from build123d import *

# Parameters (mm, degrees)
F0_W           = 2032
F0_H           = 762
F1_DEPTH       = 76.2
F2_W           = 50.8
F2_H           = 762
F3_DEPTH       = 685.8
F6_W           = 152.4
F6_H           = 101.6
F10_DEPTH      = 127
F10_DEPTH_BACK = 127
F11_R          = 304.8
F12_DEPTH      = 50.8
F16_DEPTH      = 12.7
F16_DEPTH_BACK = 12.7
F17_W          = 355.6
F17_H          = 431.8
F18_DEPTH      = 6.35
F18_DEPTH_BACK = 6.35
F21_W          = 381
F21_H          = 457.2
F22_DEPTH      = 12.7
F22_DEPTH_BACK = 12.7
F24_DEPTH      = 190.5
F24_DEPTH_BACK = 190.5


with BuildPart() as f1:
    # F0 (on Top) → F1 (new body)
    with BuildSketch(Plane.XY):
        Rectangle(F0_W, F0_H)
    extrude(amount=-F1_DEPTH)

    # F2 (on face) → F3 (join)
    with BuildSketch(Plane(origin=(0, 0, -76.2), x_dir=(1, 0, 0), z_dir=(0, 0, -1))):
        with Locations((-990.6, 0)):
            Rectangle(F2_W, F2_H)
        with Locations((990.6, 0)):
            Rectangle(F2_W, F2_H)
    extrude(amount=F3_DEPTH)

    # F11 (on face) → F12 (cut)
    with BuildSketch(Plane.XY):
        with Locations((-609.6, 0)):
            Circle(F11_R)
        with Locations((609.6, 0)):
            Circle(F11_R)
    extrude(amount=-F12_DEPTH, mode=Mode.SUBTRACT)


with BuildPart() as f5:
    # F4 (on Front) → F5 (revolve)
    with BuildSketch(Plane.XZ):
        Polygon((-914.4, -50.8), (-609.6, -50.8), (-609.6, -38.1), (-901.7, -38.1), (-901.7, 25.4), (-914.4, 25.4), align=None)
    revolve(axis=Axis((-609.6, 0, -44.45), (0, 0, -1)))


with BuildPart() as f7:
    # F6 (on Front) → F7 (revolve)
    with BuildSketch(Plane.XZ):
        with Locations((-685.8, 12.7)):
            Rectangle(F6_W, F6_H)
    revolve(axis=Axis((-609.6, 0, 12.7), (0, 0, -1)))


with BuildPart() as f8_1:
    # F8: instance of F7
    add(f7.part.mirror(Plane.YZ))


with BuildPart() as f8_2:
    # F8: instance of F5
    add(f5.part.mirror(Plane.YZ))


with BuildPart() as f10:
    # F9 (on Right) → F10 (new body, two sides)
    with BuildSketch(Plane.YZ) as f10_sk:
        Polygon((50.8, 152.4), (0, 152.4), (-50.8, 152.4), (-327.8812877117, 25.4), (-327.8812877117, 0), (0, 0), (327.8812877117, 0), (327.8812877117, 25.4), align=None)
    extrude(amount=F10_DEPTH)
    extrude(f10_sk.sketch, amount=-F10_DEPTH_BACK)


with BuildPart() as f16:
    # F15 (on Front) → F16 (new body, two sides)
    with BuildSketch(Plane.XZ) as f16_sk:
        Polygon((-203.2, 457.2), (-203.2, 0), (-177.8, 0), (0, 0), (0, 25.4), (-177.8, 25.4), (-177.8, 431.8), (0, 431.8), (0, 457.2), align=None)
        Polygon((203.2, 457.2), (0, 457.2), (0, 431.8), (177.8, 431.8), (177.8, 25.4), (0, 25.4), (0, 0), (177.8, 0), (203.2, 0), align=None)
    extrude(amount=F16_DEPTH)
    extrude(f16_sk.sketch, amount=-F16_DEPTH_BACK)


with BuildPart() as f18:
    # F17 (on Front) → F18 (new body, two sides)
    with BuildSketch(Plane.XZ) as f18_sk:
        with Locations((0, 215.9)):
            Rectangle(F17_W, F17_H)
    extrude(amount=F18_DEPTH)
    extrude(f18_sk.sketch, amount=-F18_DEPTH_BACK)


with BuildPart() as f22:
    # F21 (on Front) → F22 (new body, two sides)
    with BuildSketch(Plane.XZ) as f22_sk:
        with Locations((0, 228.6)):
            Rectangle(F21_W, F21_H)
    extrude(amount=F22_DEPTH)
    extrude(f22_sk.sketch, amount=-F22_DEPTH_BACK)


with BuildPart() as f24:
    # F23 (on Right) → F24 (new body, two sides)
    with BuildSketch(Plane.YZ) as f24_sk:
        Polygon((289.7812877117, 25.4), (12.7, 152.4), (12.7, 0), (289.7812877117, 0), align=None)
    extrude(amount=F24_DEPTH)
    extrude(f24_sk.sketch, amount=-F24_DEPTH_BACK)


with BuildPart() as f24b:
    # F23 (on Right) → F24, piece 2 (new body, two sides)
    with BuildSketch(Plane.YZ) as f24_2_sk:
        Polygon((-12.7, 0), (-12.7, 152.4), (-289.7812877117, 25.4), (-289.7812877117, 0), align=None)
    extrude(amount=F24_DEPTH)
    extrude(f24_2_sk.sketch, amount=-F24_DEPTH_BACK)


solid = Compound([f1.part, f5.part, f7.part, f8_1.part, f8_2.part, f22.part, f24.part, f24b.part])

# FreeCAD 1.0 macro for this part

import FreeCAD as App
import Part
import Sketcher
from FreeCAD import Vector
Q = App.Units.Quantity

doc = App.newDocument("Part")
body = doc.addObject("PartDesign::Body", "Body")

sketch1 = doc.addObject("Sketcher::SketchObject", "Sketch")
body.addObject(sketch1)
sketch1.AttachmentSupport = (doc.XY_Plane, [""])
sketch1.MapMode = "FlatFace"
sketch1.addGeometry([
    Part.LineSegment(Vector(-1016, 381, 0), Vector(-1016, -381, 0)),
    Part.LineSegment(Vector(-1016, -381, 0), Vector(1016, -381, 0)),
    Part.LineSegment(Vector(1016, -381, 0), Vector(1016, 381, 0)),
    Part.LineSegment(Vector(1016, 381, 0), Vector(-1016, 381, 0)),
], False)
sketch1.addConstraint([
    Sketcher.Constraint("Coincident", 0, 2, 1, 1),
    Sketcher.Constraint("Coincident", 1, 2, 2, 1),
    Sketcher.Constraint("Coincident", 2, 2, 3, 1),
    Sketcher.Constraint("Coincident", 3, 2, 0, 1),
    Sketcher.Constraint("Vertical", 0),
    Sketcher.Constraint("Horizontal", 1),
    Sketcher.Constraint("Vertical", 2),
    Sketcher.Constraint("Horizontal", 3),
    Sketcher.Constraint("Symmetric", 0, 2, 2, 2, -1, 1),
    Sketcher.Constraint("DistanceX", 1, 1, 1, 2, Q("80 in")),
    Sketcher.Constraint("DistanceY", 0, 2, 0, 1, Q("30 in")),
])
pad1 = doc.addObject("PartDesign::Pad", "Pad")
body.addObject(pad1)
pad1.Profile = sketch1
pad1.Length = Q("3 in")
pad1.Reversed = True

sketch2 = doc.addObject("Sketcher::SketchObject", "Sketch001")
body.addObject(sketch2)
sketch2.AttachmentSupport = (doc.XY_Plane, [""])
sketch2.MapMode = "FlatFace"
sketch2.AttachmentOffset = App.Placement(Vector(0, 0, -3 * 25.4), App.Rotation())
sketch2.addGeometry([
    Part.LineSegment(Vector(-1016, -381, 0), Vector(-1016, 381, 0)),
    Part.LineSegment(Vector(-1016, 381, 0), Vector(-965.2, 381, 0)),
    Part.LineSegment(Vector(-965.2, 381, 0), Vector(-965.2, -381, 0)),
    Part.LineSegment(Vector(-965.2, -381, 0), Vector(-1016, -381, 0)),
    Part.LineSegment(Vector(965.2, -381, 0), Vector(965.2, 381, 0)),
    Part.LineSegment(Vector(965.2, 381, 0), Vector(1016, 381, 0)),
    Part.LineSegment(Vector(1016, 381, 0), Vector(1016, -381, 0)),
    Part.LineSegment(Vector(1016, -381, 0), Vector(965.2, -381, 0)),
], False)
sketch2.addConstraint([
    Sketcher.Constraint("Coincident", 0, 2, 1, 1),
    Sketcher.Constraint("Coincident", 1, 2, 2, 1),
    Sketcher.Constraint("Coincident", 2, 2, 3, 1),
    Sketcher.Constraint("Coincident", 3, 2, 0, 1),
    Sketcher.Constraint("Coincident", 4, 2, 5, 1),
    Sketcher.Constraint("Coincident", 5, 2, 6, 1),
    Sketcher.Constraint("Coincident", 6, 2, 7, 1),
    Sketcher.Constraint("Coincident", 7, 2, 4, 1),
    Sketcher.Constraint("Vertical", 0),
    Sketcher.Constraint("Horizontal", 1),
    Sketcher.Constraint("Vertical", 2),
    Sketcher.Constraint("Horizontal", 3),
    Sketcher.Constraint("Vertical", 4),
    Sketcher.Constraint("Horizontal", 5),
    Sketcher.Constraint("Vertical", 6),
    Sketcher.Constraint("Horizontal", 7),
    Sketcher.Constraint("Symmetric", 2, 2, 4, 2, -1, 1),
    Sketcher.Constraint("Symmetric", 0, 2, 6, 2, -1, 1),
    Sketcher.Constraint("Horizontal", 1, 2, 4, 2),
    Sketcher.Constraint("DistanceX", 1, 1, 1, 2, Q("2 in")),
    Sketcher.Constraint("DistanceY", 0, 1, 0, 2, Q("30 in")),
    Sketcher.Constraint("DistanceX", 0, 2, -1, 1, Q("40 in")),
])
pad2 = doc.addObject("PartDesign::Pad", "Pad001")
body.addObject(pad2)
pad2.Profile = sketch2
pad2.Length = Q("27 in")
pad2.Reversed = True

sketch3 = doc.addObject("Sketcher::SketchObject", "Sketch002")
body.addObject(sketch3)
sketch3.AttachmentSupport = (doc.XY_Plane, [""])
sketch3.MapMode = "FlatFace"
sketch3.addGeometry([
    Part.Circle(Vector(-609.6, 0, 0), Vector(0, 0, 1), 304.8),
    Part.Circle(Vector(609.6, 0, 0), Vector(0, 0, 1), 304.8),
], False)
sketch3.addConstraint([
    Sketcher.Constraint("Equal", 0, 1),
    Sketcher.Constraint("Symmetric", 0, 3, 1, 3, -1, 1),
    Sketcher.Constraint("PointOnObject", 0, 3, -1),
    Sketcher.Constraint("Diameter", 0, Q("24 in")),
    Sketcher.Constraint("DistanceX", 0, 3, -1, 1, Q("24 in")),
])
pocket1 = doc.addObject("PartDesign::Pocket", "Pocket")
body.addObject(pocket1)
pocket1.Profile = sketch3
pocket1.Length = Q("2 in")
body2 = doc.addObject("PartDesign::Body", "Body001")

sketch4 = doc.addObject("Sketcher::SketchObject", "Sketch003")
body2.addObject(sketch4)
sketch4.AttachmentSupport = (doc.getObject("XZ_Plane001"), [""])
sketch4.MapMode = "FlatFace"
sketch4.addGeometry([
    Part.LineSegment(Vector(-914.4, -50.8, 0), Vector(-609.6, -50.8, 0)),
    Part.LineSegment(Vector(-609.6, -50.8, 0), Vector(-609.6, -38.1, 0)),
    Part.LineSegment(Vector(-609.6, -38.1, 0), Vector(-901.7, -38.1, 0)),
    Part.LineSegment(Vector(-901.7, -38.1, 0), Vector(-901.7, 25.4, 0)),
    Part.LineSegment(Vector(-901.7, 25.4, 0), Vector(-914.4, 25.4, 0)),
    Part.LineSegment(Vector(-914.4, 25.4, 0), Vector(-914.4, -50.8, 0)),
], False)
sketch4.addGeometry(Part.LineSegment(Vector(-609.6, 25.4, 0), Vector(-609.6, -50.8, 0)), True)
sketch4.addConstraint([
    Sketcher.Constraint("Coincident", 0, 2, 1, 1),
    Sketcher.Constraint("Coincident", 1, 2, 2, 1),
    Sketcher.Constraint("Coincident", 2, 2, 3, 1),
    Sketcher.Constraint("Coincident", 3, 2, 4, 1),
    Sketcher.Constraint("Coincident", 4, 2, 5, 1),
    Sketcher.Constraint("Coincident", 5, 2, 0, 1),
    Sketcher.Constraint("Horizontal", 0),
    Sketcher.Constraint("Vertical", 1),
    Sketcher.Constraint("Horizontal", 2),
    Sketcher.Constraint("Vertical", 3),
    Sketcher.Constraint("Horizontal", 4),
    Sketcher.Constraint("Vertical", 5),
    Sketcher.Constraint("Vertical", 6),
    Sketcher.Constraint("Coincident", 6, 2, 0, 2),
    Sketcher.Constraint("Horizontal", 4, 2, 6, 1),
    Sketcher.Constraint("Equal", 4, 1),
    Sketcher.Constraint("DistanceX", 0, 1, 0, 2, Q("12 in")),
    Sketcher.Constraint("DistanceY", 5, 2, 5, 1, Q("3 in")),
    Sketcher.Constraint("DistanceX", 2, 2, 2, 1, Q("11.5 in")),
    Sketcher.Constraint("DistanceX", 0, 2, -1, 1, Q("24 in")),
    Sketcher.Constraint("DistanceY", 0, 2, -1, 1, Q("2 in")),
])
revolution = doc.addObject("PartDesign::Revolution", "Revolution")
body2.addObject(revolution)
revolution.Profile = sketch4
revolution.ReferenceAxis = (sketch4, ["Axis0"])
revolution.Angle = 360
body3 = doc.addObject("PartDesign::Body", "Body002")

sketch5 = doc.addObject("Sketcher::SketchObject", "Sketch004")
body3.addObject(sketch5)
sketch5.AttachmentSupport = (doc.getObject("XZ_Plane002"), [""])
sketch5.MapMode = "FlatFace"
sketch5.addGeometry([
    Part.LineSegment(Vector(-762, 63.5, 0), Vector(-762, -38.1, 0)),
    Part.LineSegment(Vector(-762, -38.1, 0), Vector(-609.6, -38.1, 0)),
    Part.LineSegment(Vector(-609.6, -38.1, 0), Vector(-609.6, 63.5, 0)),
    Part.LineSegment(Vector(-609.6, 63.5, 0), Vector(-762, 63.5, 0)),
], False)
sketch5.addGeometry(Part.LineSegment(Vector(-609.6, 63.5, 0), Vector(-609.6, -38.1, 0)), True)
sketch5.addConstraint([
    Sketcher.Constraint("Coincident", 0, 2, 1, 1),
    Sketcher.Constraint("Coincident", 1, 2, 2, 1),
    Sketcher.Constraint("Coincident", 2, 2, 3, 1),
    Sketcher.Constraint("Coincident", 3, 2, 0, 1),
    Sketcher.Constraint("Vertical", 0),
    Sketcher.Constraint("Horizontal", 1),
    Sketcher.Constraint("Vertical", 2),
    Sketcher.Constraint("Horizontal", 3),
    Sketcher.Constraint("Vertical", 4),
    Sketcher.Constraint("Coincident", 4, 1, 2, 2),
    Sketcher.Constraint("Horizontal", 0, 2, 4, 2),
    Sketcher.Constraint("DistanceX", 1, 1, 1, 2, Q("6 in")),
    Sketcher.Constraint("DistanceY", 0, 2, 0, 1, Q("4 in")),
    Sketcher.Constraint("DistanceX", 0, 2, -1, 1, Q("30 in")),
    Sketcher.Constraint("DistanceY", 0, 2, -1, 1, Q("1.5 in")),
])
revolution2 = doc.addObject("PartDesign::Revolution", "Revolution001")
body3.addObject(revolution2)
revolution2.Profile = sketch5
revolution2.ReferenceAxis = (sketch5, ["Axis0"])
revolution2.Angle = 360
body4 = doc.addObject("PartDesign::Body", "Body003")
doc.recompute()

mirroring = doc.addObject("Part::Mirroring", "Mirroring")
mirroring.Source = body3
mirroring.Base = Vector(0, 0, 0)
mirroring.Normal = Vector(1, 0, 0)
body4.BaseFeature = mirroring
doc.recompute()
body5 = doc.addObject("PartDesign::Body", "Body004")
doc.recompute()

mirroring2 = doc.addObject("Part::Mirroring", "Mirroring001")
mirroring2.Source = body2
mirroring2.Base = Vector(0, 0, 0)
mirroring2.Normal = Vector(1, 0, 0)
body5.BaseFeature = mirroring2
doc.recompute()
body6 = doc.addObject("PartDesign::Body", "Body005")

sketch6 = doc.addObject("Sketcher::SketchObject", "Sketch005")
body6.addObject(sketch6)
sketch6.AttachmentSupport = (doc.getObject("YZ_Plane005"), [""])
sketch6.MapMode = "FlatFace"
sketch6.addGeometry([
    Part.LineSegment(Vector(50.8, 152.4, 0), Vector(-50.8, 152.4, 0)),
    Part.LineSegment(Vector(-50.8, 152.4, 0), Vector(-327.881288, 25.4, 0)),
    Part.LineSegment(Vector(-327.881288, 25.4, 0), Vector(-327.881288, 0, 0)),
    Part.LineSegment(Vector(-327.881288, 0, 0), Vector(327.881288, 0, 0)),
    Part.LineSegment(Vector(327.881288, 0, 0), Vector(327.881288, 25.4, 0)),
    Part.LineSegment(Vector(327.881288, 25.4, 0), Vector(50.8, 152.4, 0)),
], False)
sketch6.addConstraint([
    Sketcher.Constraint("Coincident", 0, 2, 1, 1),
    Sketcher.Constraint("Coincident", 1, 2, 2, 1),
    Sketcher.Constraint("Coincident", 2, 2, 3, 1),
    Sketcher.Constraint("Coincident", 3, 2, 4, 1),
    Sketcher.Constraint("Coincident", 4, 2, 5, 1),
    Sketcher.Constraint("Coincident", 5, 2, 0, 1),
    Sketcher.Constraint("Horizontal", 0),
    Sketcher.Constraint("Vertical", 2),
    Sketcher.Constraint("Horizontal", 3),
    Sketcher.Constraint("Vertical", 4),
    Sketcher.Constraint("Symmetric", 2, 2, 3, 2, -1, 1),
    Sketcher.Constraint("Horizontal", 1, 2, 4, 2),
    Sketcher.Constraint("Equal", 1, 5),
    Sketcher.Constraint("DistanceX", 0, 2, 0, 1, Q("4 in")),
    Sketcher.Constraint("DistanceY", 2, 2, 2, 1, Q("1 in")),
    Sketcher.Constraint("Distance", 1, Q("12 in")),
    Sketcher.Constraint("DistanceY", -1, 1, 0, 2, Q("6 in")),
])
pad3 = doc.addObject("PartDesign::Pad", "Pad002")
body6.addObject(pad3)
pad3.Profile = sketch6
pad3.Type = "TwoLengths"
pad3.Length = Q("5 in")
pad3.Length2 = Q("5 in")
body7 = doc.addObject("PartDesign::Body", "Body006")

sketch7 = doc.addObject("Sketcher::SketchObject", "Sketch006")
body7.addObject(sketch7)
sketch7.AttachmentSupport = (doc.getObject("XZ_Plane006"), [""])
sketch7.MapMode = "FlatFace"
sketch7.addGeometry([
    Part.LineSegment(Vector(-203.2, 457.2, 0), Vector(-203.2, 0, 0)),
    Part.LineSegment(Vector(-203.2, 0, 0), Vector(203.2, 0, 0)),
    Part.LineSegment(Vector(203.2, 0, 0), Vector(203.2, 457.2, 0)),
    Part.LineSegment(Vector(203.2, 457.2, 0), Vector(-203.2, 457.2, 0)),
    Part.LineSegment(Vector(-177.8, 25.4, 0), Vector(-177.8, 431.8, 0)),
    Part.LineSegment(Vector(-177.8, 431.8, 0), Vector(177.8, 431.8, 0)),
    Part.LineSegment(Vector(177.8, 431.8, 0), Vector(177.8, 25.4, 0)),
    Part.LineSegment(Vector(177.8, 25.4, 0), Vector(-177.8, 25.4, 0)),
], False)
sketch7.addConstraint([
    Sketcher.Constraint("Coincident", 0, 2, 1, 1),
    Sketcher.Constraint("Coincident", 1, 2, 2, 1),
    Sketcher.Constraint("Coincident", 2, 2, 3, 1),
    Sketcher.Constraint("Coincident", 3, 2, 0, 1),
    Sketcher.Constraint("Coincident", 4, 2, 5, 1),
    Sketcher.Constraint("Coincident", 5, 2, 6, 1),
    Sketcher.Constraint("Coincident", 6, 2, 7, 1),
    Sketcher.Constraint("Coincident", 7, 2, 4, 1),
    Sketcher.Constraint("Vertical", 0),
    Sketcher.Constraint("Horizontal", 1),
    Sketcher.Constraint("Vertical", 2),
    Sketcher.Constraint("Horizontal", 3),
    Sketcher.Constraint("Vertical", 4),
    Sketcher.Constraint("Horizontal", 5),
    Sketcher.Constraint("Vertical", 6),
    Sketcher.Constraint("Horizontal", 7),
    Sketcher.Constraint("Symmetric", 0, 2, 1, 2, -1, 1),
    Sketcher.Constraint("Equal", 3, 4),
    Sketcher.Constraint("DistanceX", 1, 1, 1, 2, Q("16 in")),
    Sketcher.Constraint("DistanceX", 5, 1, 5, 2, Q("14 in")),
    Sketcher.Constraint("DistanceY", 0, 2, 0, 1, Q("18 in")),
    Sketcher.Constraint("DistanceX", 4, 2, -1, 1, Q("7 in")),
    Sketcher.Constraint("DistanceY", -1, 1, 4, 2, Q("17 in")),
])
pad4 = doc.addObject("PartDesign::Pad", "Pad003")
body7.addObject(pad4)
pad4.Profile = sketch7
pad4.Type = "TwoLengths"
pad4.Length = Q("0.5 in")
pad4.Length2 = Q("0.5 in")
body8 = doc.addObject("PartDesign::Body", "Body007")

sketch8 = doc.addObject("Sketcher::SketchObject", "Sketch007")
body8.addObject(sketch8)
sketch8.AttachmentSupport = (doc.getObject("XZ_Plane007"), [""])
sketch8.MapMode = "FlatFace"
sketch8.addGeometry([
    Part.LineSegment(Vector(-177.8, 431.8, 0), Vector(-177.8, 0, 0)),
    Part.LineSegment(Vector(-177.8, 0, 0), Vector(177.8, 0, 0)),
    Part.LineSegment(Vector(177.8, 0, 0), Vector(177.8, 431.8, 0)),
    Part.LineSegment(Vector(177.8, 431.8, 0), Vector(-177.8, 431.8, 0)),
], False)
sketch8.addConstraint([
    Sketcher.Constraint("Coincident", 0, 2, 1, 1),
    Sketcher.Constraint("Coincident", 1, 2, 2, 1),
    Sketcher.Constraint("Coincident", 2, 2, 3, 1),
    Sketcher.Constraint("Coincident", 3, 2, 0, 1),
    Sketcher.Constraint("Vertical", 0),
    Sketcher.Constraint("Horizontal", 1),
    Sketcher.Constraint("Vertical", 2),
    Sketcher.Constraint("Horizontal", 3),
    Sketcher.Constraint("Symmetric", 0, 2, 1, 2, -1, 1),
    Sketcher.Constraint("DistanceX", 1, 1, 1, 2, Q("14 in")),
    Sketcher.Constraint("DistanceY", 0, 2, 0, 1, Q("17 in")),
])
pad5 = doc.addObject("PartDesign::Pad", "Pad004")
body8.addObject(pad5)
pad5.Profile = sketch8
pad5.Type = "TwoLengths"
pad5.Length = Q("0.25 in")
pad5.Length2 = Q("0.25 in")
body9 = doc.addObject("PartDesign::Body", "Body008")

sketch9 = doc.addObject("Sketcher::SketchObject", "Sketch008")
body9.addObject(sketch9)
sketch9.AttachmentSupport = (doc.getObject("XZ_Plane008"), [""])
sketch9.MapMode = "FlatFace"
sketch9.addGeometry([
    Part.LineSegment(Vector(-190.5, 457.2, 0), Vector(-190.5, 0, 0)),
    Part.LineSegment(Vector(-190.5, 0, 0), Vector(190.5, 0, 0)),
    Part.LineSegment(Vector(190.5, 0, 0), Vector(190.5, 457.2, 0)),
    Part.LineSegment(Vector(190.5, 457.2, 0), Vector(-190.5, 457.2, 0)),
], False)
sketch9.addConstraint([
    Sketcher.Constraint("Coincident", 0, 2, 1, 1),
    Sketcher.Constraint("Coincident", 1, 2, 2, 1),
    Sketcher.Constraint("Coincident", 2, 2, 3, 1),
    Sketcher.Constraint("Coincident", 3, 2, 0, 1),
    Sketcher.Constraint("Vertical", 0),
    Sketcher.Constraint("Horizontal", 1),
    Sketcher.Constraint("Vertical", 2),
    Sketcher.Constraint("Horizontal", 3),
    Sketcher.Constraint("Symmetric", 0, 2, 1, 2, -1, 1),
    Sketcher.Constraint("DistanceX", 1, 1, 1, 2, Q("15 in")),
    Sketcher.Constraint("DistanceY", 0, 2, 0, 1, Q("18 in")),
])
pad6 = doc.addObject("PartDesign::Pad", "Pad005")
body9.addObject(pad6)
pad6.Profile = sketch9
pad6.Type = "TwoLengths"
pad6.Length = Q("0.5 in")
pad6.Length2 = Q("0.5 in")
body10 = doc.addObject("PartDesign::Body", "Body009")

sketch10 = doc.addObject("Sketcher::SketchObject", "Sketch009")
body10.addObject(sketch10)
sketch10.AttachmentSupport = (doc.getObject("YZ_Plane009"), [""])
sketch10.MapMode = "FlatFace"
sketch10.addGeometry([
    Part.LineSegment(Vector(289.781288, 25.4, 0), Vector(12.7, 152.4, 0)),
    Part.LineSegment(Vector(12.7, 152.4, 0), Vector(12.7, 0, 0)),
    Part.LineSegment(Vector(12.7, 0, 0), Vector(289.781288, 0, 0)),
    Part.LineSegment(Vector(289.781288, 0, 0), Vector(289.781288, 25.4, 0)),
], False)
sketch10.addConstraint([
    Sketcher.Constraint("Coincident", 0, 2, 1, 1),
    Sketcher.Constraint("Coincident", 1, 2, 2, 1),
    Sketcher.Constraint("Coincident", 2, 2, 3, 1),
    Sketcher.Constraint("Coincident", 3, 2, 0, 1),
    Sketcher.Constraint("Vertical", 1),
    Sketcher.Constraint("Horizontal", 2),
    Sketcher.Constraint("Vertical", 3),
    Sketcher.Constraint("PointOnObject", 1, 2, -1),
    Sketcher.Constraint("DistanceY", 1, 2, 1, 1, Q("6 in")),
    Sketcher.Constraint("DistanceY", 3, 1, 3, 2, Q("1 in")),
    Sketcher.Constraint("Distance", 0, Q("12 in")),
    Sketcher.Constraint("DistanceX", -1, 1, 0, 2, Q("0.5 in")),
])
pad7 = doc.addObject("PartDesign::Pad", "Pad006")
body10.addObject(pad7)
pad7.Profile = sketch10
pad7.Type = "TwoLengths"
pad7.Length = Q("7.5 in")
pad7.Length2 = Q("7.5 in")
body11 = doc.addObject("PartDesign::Body", "Body010")

sketch11 = doc.addObject("Sketcher::SketchObject", "Sketch010")
body11.addObject(sketch11)
sketch11.AttachmentSupport = (doc.getObject("YZ_Plane010"), [""])
sketch11.MapMode = "FlatFace"
sketch11.addGeometry([
    Part.LineSegment(Vector(-12.7, 0, 0), Vector(-12.7, 152.4, 0)),
    Part.LineSegment(Vector(-12.7, 152.4, 0), Vector(-289.781288, 25.4, 0)),
    Part.LineSegment(Vector(-289.781288, 25.4, 0), Vector(-289.781288, 0, 0)),
    Part.LineSegment(Vector(-289.781288, 0, 0), Vector(-12.7, 0, 0)),
], False)
sketch11.addConstraint([
    Sketcher.Constraint("Coincident", 0, 2, 1, 1),
    Sketcher.Constraint("Coincident", 1, 2, 2, 1),
    Sketcher.Constraint("Coincident", 2, 2, 3, 1),
    Sketcher.Constraint("Coincident", 3, 2, 0, 1),
    Sketcher.Constraint("Vertical", 0),
    Sketcher.Constraint("Vertical", 2),
    Sketcher.Constraint("Horizontal", 3),
    Sketcher.Constraint("PointOnObject", 2, 2, -1),
    Sketcher.Constraint("DistanceY", 0, 1, 0, 2, Q("6 in")),
    Sketcher.Constraint("DistanceY", 2, 2, 2, 1, Q("1 in")),
    Sketcher.Constraint("Distance", 1, Q("12 in")),
    Sketcher.Constraint("DistanceX", 0, 2, -1, 1, Q("0.5 in")),
])
pad8 = doc.addObject("PartDesign::Pad", "Pad007")
body11.addObject(pad8)
pad8.Profile = sketch11
pad8.Type = "TwoLengths"
pad8.Length = Q("7.5 in")
pad8.Length2 = Q("7.5 in")
body6.Visibility = False
body7.Visibility = False
body8.Visibility = False
mirroring.Visibility = False
mirroring2.Visibility = False

doc.recompute()
